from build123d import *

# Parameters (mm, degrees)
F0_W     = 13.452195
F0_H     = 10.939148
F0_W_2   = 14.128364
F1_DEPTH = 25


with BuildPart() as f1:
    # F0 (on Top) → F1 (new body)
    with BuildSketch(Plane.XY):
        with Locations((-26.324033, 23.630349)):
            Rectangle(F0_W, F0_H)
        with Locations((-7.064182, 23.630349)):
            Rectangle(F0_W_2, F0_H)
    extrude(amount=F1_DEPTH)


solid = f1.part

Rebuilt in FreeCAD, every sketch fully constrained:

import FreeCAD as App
import Part
import Sketcher

V = App.Vector
Q = App.Units.Quantity


def add_polygon(sketch, points):
    """Adds a closed chain of lines whose ends are joined by coincident constraints."""
    first, n = sketch.GeometryCount, len(points)
    for a, b in zip(points, points[1:] + points[:1]):
        sketch.addGeometry(Part.LineSegment(App.Vector(*a, 0), App.Vector(*b, 0)), False)
    for i in range(n):
        sketch.addConstraint(Sketcher.Constraint("Coincident", first + i, 2, first + (i + 1) % n, 1))

doc = App.newDocument("Part")
body = doc.addObject("PartDesign::Body", "Body")
body.AllowCompound = True

sketch1 = doc.addObject("Sketcher::SketchObject", "Sketch")
body.addObject(sketch1)
sketch1.AttachmentSupport = (doc.XY_Plane, [""])
sketch1.MapMode = "FlatFace"
add_polygon(sketch1, [(-33, 29), (-33, 18), (-20, 18), (-20, 29)])
add_polygon(sketch1, [(-14, 29), (-14, 18), (0, 18), (0, 29)])
sketch1.addConstraint([
    Sketcher.Constraint("Vertical", 0),
    Sketcher.Constraint("Horizontal", 1),
    Sketcher.Constraint("Vertical", 2),
    Sketcher.Constraint("Horizontal", 3),
    Sketcher.Constraint("Vertical", 4),
    Sketcher.Constraint("Horizontal", 5),
    Sketcher.Constraint("Vertical", 6),
    Sketcher.Constraint("Horizontal", 7),
    Sketcher.Constraint("PointOnObject", 5, 2, -2),
    Sketcher.Constraint("Horizontal", 1, 2, 4, 2),
    Sketcher.Constraint("Horizontal", 3, 2, 6, 2),
    Sketcher.Constraint("DistanceX", 1, 1, 1, 2, Q("13.452195 mm")),
    Sketcher.Constraint("DistanceX", 5, 1, 5, 2, Q("14.128364 mm")),
    Sketcher.Constraint("DistanceY", 0, 2, 0, 1, Q("10.939148 mm")),
    Sketcher.Constraint("DistanceX", 0, 2, -1, 1, Q("33.050131 mm")),
    Sketcher.Constraint("DistanceY", -1, 1, 0, 2, Q("18.160775 mm")),
])
pad1 = doc.addObject("PartDesign::Pad", "Pad")
body.addObject(pad1)
pad1.Profile = sketch1
pad1.Length = 25

doc.recompute()
